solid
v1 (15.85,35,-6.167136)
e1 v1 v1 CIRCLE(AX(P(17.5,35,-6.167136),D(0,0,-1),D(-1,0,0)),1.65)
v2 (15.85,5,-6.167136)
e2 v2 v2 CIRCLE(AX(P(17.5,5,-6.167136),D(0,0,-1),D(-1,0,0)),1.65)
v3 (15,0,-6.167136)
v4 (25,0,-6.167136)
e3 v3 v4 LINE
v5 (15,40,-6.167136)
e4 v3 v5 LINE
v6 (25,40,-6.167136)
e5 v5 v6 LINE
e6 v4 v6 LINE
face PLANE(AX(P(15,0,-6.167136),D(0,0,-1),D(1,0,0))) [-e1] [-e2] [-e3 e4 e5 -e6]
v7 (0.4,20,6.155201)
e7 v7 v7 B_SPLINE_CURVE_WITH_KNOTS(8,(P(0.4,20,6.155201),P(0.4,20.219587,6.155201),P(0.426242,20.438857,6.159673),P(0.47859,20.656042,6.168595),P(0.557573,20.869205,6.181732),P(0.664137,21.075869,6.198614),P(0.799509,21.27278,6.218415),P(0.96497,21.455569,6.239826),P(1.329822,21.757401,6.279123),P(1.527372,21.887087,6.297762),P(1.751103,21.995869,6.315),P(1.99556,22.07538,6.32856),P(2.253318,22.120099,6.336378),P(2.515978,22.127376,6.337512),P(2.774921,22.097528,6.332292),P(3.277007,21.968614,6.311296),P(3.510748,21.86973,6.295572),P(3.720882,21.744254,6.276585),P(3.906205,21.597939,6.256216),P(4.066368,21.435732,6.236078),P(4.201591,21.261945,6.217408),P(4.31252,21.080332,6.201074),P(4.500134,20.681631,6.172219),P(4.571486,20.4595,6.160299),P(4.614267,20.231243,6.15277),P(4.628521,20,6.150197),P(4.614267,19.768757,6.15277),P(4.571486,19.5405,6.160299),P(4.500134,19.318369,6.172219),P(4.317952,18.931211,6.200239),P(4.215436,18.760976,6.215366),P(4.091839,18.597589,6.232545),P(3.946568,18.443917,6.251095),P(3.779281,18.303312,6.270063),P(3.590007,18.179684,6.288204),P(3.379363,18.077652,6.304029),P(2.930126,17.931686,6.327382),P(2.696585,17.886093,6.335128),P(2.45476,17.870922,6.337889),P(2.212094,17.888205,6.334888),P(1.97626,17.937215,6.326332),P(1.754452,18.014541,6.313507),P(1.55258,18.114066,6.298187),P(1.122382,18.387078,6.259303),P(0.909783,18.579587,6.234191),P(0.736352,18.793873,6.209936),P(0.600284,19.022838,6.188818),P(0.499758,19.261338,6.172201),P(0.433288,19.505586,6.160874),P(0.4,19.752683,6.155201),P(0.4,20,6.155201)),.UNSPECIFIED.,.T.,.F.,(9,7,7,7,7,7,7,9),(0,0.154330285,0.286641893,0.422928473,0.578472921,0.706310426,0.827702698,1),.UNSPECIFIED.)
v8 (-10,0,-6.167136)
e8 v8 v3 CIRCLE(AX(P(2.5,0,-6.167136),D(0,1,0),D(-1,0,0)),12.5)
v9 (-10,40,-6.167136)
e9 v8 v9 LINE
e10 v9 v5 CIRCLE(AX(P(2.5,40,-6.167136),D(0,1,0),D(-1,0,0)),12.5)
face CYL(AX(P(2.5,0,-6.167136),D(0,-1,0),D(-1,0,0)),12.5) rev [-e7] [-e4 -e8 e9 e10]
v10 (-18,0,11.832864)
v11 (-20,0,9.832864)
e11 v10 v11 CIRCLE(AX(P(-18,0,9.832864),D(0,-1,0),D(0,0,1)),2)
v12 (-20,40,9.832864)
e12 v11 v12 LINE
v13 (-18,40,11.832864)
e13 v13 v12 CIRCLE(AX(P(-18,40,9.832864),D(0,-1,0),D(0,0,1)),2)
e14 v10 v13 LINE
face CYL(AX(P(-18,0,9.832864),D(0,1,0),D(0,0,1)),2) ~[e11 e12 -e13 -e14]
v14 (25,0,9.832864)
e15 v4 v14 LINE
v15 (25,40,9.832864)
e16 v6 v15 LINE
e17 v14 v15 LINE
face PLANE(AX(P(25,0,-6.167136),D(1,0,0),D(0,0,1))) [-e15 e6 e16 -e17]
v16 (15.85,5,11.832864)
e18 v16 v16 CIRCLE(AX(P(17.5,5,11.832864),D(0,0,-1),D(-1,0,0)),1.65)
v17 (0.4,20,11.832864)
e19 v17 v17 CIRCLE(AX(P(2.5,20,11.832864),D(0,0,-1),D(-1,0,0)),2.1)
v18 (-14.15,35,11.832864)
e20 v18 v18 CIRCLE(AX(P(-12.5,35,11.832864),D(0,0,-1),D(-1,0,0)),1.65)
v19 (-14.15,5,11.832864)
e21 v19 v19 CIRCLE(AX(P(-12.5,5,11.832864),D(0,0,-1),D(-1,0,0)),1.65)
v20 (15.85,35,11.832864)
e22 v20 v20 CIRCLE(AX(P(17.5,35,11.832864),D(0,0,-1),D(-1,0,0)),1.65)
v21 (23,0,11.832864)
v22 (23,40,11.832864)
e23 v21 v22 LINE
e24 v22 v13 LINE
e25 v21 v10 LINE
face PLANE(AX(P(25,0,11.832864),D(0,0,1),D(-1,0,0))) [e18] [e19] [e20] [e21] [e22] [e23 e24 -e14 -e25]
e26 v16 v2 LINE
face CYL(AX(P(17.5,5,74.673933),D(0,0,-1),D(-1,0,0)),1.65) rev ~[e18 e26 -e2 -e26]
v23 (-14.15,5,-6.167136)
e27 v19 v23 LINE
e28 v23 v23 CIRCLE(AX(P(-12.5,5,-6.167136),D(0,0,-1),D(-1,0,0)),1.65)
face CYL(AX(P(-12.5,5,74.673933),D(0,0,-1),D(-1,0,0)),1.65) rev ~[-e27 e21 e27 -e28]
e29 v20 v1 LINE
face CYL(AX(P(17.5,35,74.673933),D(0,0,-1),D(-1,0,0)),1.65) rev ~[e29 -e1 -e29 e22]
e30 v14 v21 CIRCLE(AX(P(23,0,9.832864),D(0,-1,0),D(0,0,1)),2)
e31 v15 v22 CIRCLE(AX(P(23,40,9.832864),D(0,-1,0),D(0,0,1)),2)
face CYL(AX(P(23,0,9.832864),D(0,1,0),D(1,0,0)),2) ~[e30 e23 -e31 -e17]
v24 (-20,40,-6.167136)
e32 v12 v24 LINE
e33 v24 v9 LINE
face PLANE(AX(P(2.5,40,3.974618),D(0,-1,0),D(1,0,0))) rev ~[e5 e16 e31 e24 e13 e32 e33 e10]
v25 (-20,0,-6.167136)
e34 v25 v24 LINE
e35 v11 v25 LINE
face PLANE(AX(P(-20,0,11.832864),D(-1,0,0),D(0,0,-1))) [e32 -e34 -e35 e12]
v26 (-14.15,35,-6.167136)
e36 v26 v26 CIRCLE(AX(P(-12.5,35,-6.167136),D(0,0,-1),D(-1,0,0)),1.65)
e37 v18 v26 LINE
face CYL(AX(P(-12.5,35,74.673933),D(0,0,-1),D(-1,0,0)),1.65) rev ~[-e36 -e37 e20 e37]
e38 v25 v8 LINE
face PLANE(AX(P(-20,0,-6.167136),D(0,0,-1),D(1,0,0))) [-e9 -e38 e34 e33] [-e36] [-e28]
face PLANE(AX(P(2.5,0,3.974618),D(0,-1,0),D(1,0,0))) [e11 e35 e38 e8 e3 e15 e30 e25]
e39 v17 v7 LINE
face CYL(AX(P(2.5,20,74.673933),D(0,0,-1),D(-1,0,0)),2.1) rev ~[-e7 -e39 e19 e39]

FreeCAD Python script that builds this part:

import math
import FreeCAD as App
import Part
import Sketcher

V = App.Vector
Q = App.Units.Quantity


def edges_at(feature, points):
    """Names of the edges that pass closest to the given points."""
    edges = feature.Shape.Edges
    near = lambda p: min(range(len(edges)), key=lambda i: edges[i].distToShape(Part.Vertex(*p))[0])
    return sorted({f"Edge{near(p) + 1}" for p in points})


def add_polygon(sketch, points):
    """Adds a closed chain of lines whose ends are joined by coincident constraints."""
    first, n = sketch.GeometryCount, len(points)
    for a, b in zip(points, points[1:] + points[:1]):
        sketch.addGeometry(Part.LineSegment(App.Vector(*a, 0), App.Vector(*b, 0)), False)
    for i in range(n):
        sketch.addConstraint(Sketcher.Constraint("Coincident", first + i, 2, first + (i + 1) % n, 1))

doc = App.newDocument("Part")
body = doc.addObject("PartDesign::Body", "Body")

# Sketch on XZ plane
sketch1 = body.newObject("Sketcher::SketchObject", "Sketch")
sketch1.AttachmentSupport = (doc.getObject("XZ_Plane"), [""])
sketch1.MapMode = "FlatFace"
sketch1.addGeometry(Part.LineSegment(V(15, -6.167136, 0), V(25, -6.167136, 0)), False)
sketch1.addGeometry(Part.LineSegment(V(25, -6.167136, 0), V(25, 11.832864, 0)), False)
sketch1.addGeometry(Part.LineSegment(V(25, 11.832864, 0), V(-20, 11.832864, 0)), False)
sketch1.addGeometry(Part.LineSegment(V(-20, 11.832864, 0), V(-20, -6.167136, 0)), False)
sketch1.addGeometry(Part.LineSegment(V(-20, -6.167136, 0), V(-10, -6.167136, 0)), False)
sketch1.addGeometry(Part.ArcOfCircle(Part.Circle(V(2.5, -6.167136, 0), V(0, 0, 1), 12.5), math.radians(0), math.radians(180)), False)
sketch1.addConstraint(Sketcher.Constraint("Coincident", 0, 2, 1, 1))
sketch1.addConstraint(Sketcher.Constraint("Coincident", 1, 2, 2, 1))
sketch1.addConstraint(Sketcher.Constraint("Coincident", 2, 2, 3, 1))
sketch1.addConstraint(Sketcher.Constraint("Coincident", 3, 2, 4, 1))
sketch1.addConstraint(Sketcher.Constraint("Coincident", 4, 2, 5, 2))
sketch1.addConstraint(Sketcher.Constraint("Coincident", 5, 1, 0, 1))
sketch1.addConstraint(Sketcher.Constraint("Horizontal", 0))
sketch1.addConstraint(Sketcher.Constraint("Vertical", 1))
sketch1.addConstraint(Sketcher.Constraint("Horizontal", 2))
sketch1.addConstraint(Sketcher.Constraint("Vertical", 3))
sketch1.addConstraint(Sketcher.Constraint("Horizontal", 4))
sketch1.addConstraint(Sketcher.Constraint("Horizontal", 5, 3, 0, 2))
sketch1.addConstraint(Sketcher.Constraint("Horizontal", 0, 2, 3, 2))
sketch1.addConstraint(Sketcher.Constraint("Equal", 0, 4))
sketch1.addConstraint(Sketcher.Constraint("Radius", 5, Q("12.5 mm")))
sketch1.addConstraint(Sketcher.Constraint("DistanceX", 0, 1, 0, 2, Q("10 mm")))
sketch1.addConstraint(Sketcher.Constraint("DistanceY", 1, 1, 1, 2, Q("18 mm")))
sketch1.addConstraint(Sketcher.Constraint("DistanceX", -1, 1, 0, 2, Q("25 mm")))
sketch1.addConstraint(Sketcher.Constraint("DistanceY", 5, 3, -1, 1, Q("6.167136 mm")))
pad1 = body.newObject("PartDesign::Pad", "Pad")
pad1.Profile = sketch1
pad1.Length = 40
pad1.Reversed = True

# Sketch on XY plane
sketch2 = body.newObject("Sketcher::SketchObject", "Sketch001")
sketch2.AttachmentSupport = (doc.getObject("XY_Plane"), [""])
sketch2.MapMode = "FlatFace"
sketch2.AttachmentOffset = App.Placement(V(0, 0, 11.832864), App.Rotation())
sketch2.addGeometry(Part.Circle(V(-12.5, 5, 0), V(0, 0, 1), 1.65), False)
sketch2.addGeometry(Part.Circle(V(-12.5, 35, 0), V(0, 0, 1), 1.65), False)
sketch2.addGeometry(Part.Circle(V(17.5, 35, 0), V(0, 0, 1), 1.65), False)
sketch2.addGeometry(Part.Circle(V(17.5, 5, 0), V(0, 0, 1), 1.65), False)
sketch2.addConstraint(Sketcher.Constraint("Equal", 0, 1))
sketch2.addConstraint(Sketcher.Constraint("Equal", 1, 2))
sketch2.addConstraint(Sketcher.Constraint("Equal", 2, 3))
sketch2.addConstraint(Sketcher.Constraint("Horizontal", 1, 3, 2, 3))
sketch2.addConstraint(Sketcher.Constraint("Horizontal", 0, 3, 3, 3))
sketch2.addConstraint(Sketcher.Constraint("Vertical", 0, 3, 1, 3))
sketch2.addConstraint(Sketcher.Constraint("Vertical", 2, 3, 3, 3))
sketch2.addConstraint(Sketcher.Constraint("Diameter", 0, Q("3.3 mm")))
sketch2.addConstraint(Sketcher.Constraint("DistanceY", -1, 1, 0, 3, Q("5 mm")))
sketch2.addConstraint(Sketcher.Constraint("DistanceY", -1, 1, 1, 3, Q("35 mm")))
sketch2.addConstraint(Sketcher.Constraint("DistanceX", 1, 3, 2, 3, Q("30 mm")))
sketch2.addConstraint(Sketcher.Constraint("DistanceX", 0, 3, -1, 1, Q("12.5 mm")))
doc.recompute()
hole = body.newObject("PartDesign::Hole", "Hole")
hole.Profile = sketch2
hole.ThreadType = "None"
hole.Diameter = 3.3
hole.DepthType = "ThroughAll"

# Sketch on XY plane
sketch3 = body.newObject("Sketcher::SketchObject", "Sketch002")
sketch3.AttachmentSupport = (doc.getObject("XY_Plane"), [""])
sketch3.MapMode = "FlatFace"
sketch3.AttachmentOffset = App.Placement(V(0, 0, 11.832864), App.Rotation())
sketch3.addGeometry(Part.Circle(V(2.5, 20, 0), V(0, 0, 1), 2.1), False)
sketch3.addConstraint(Sketcher.Constraint("Diameter", 0, Q("4.2 mm")))
sketch3.addConstraint(Sketcher.Constraint("DistanceY", -1, 1, 0, 3, Q("20 mm")))
sketch3.addConstraint(Sketcher.Constraint("DistanceX", -1, 1, 0, 3, Q("2.5 mm")))
doc.recompute()
hole2 = body.newObject("PartDesign::Hole", "Hole001")
hole2.Profile = sketch3
hole2.ThreadType = "None"
hole2.Diameter = 4.2
hole2.DepthType = "ThroughAll"
doc.recompute()

fillet = body.newObject("PartDesign::Fillet", "Fillet")
fillet.Base = (hole2, edges_at(hole2, [(-20, 20, 11.833), (25, 20, 11.833)]))
fillet.Radius = 2
body2 = doc.addObject("PartDesign::Body", "Body001")

# Sketch on XY plane
sketch4 = body2.newObject("Sketcher::SketchObject", "Sketch003")
sketch4.AttachmentSupport = (doc.getObject("XY_Plane001"), [""])
sketch4.MapMode = "FlatFace"
add_polygon(sketch4, [(57.5, 170.006436), (30, 217.637833), (-30, 217.637833), (-57.5, 170.006436), (-57.5, 30.006436), (-40, -0.304453), (40, -0.304453), (57.5, 30.006436)])  # lines 0-7
sketch4.addConstraint(Sketcher.Constraint("Horizontal", 1))
sketch4.addConstraint(Sketcher.Constraint("Vertical", 3))
sketch4.addConstraint(Sketcher.Constraint("Horizontal", 5))
sketch4.addConstraint(Sketcher.Constraint("Vertical", 7))
sketch4.addConstraint(Sketcher.Constraint("Symmetric", 3, 2, 6, 2, -2))
sketch4.addConstraint(Sketcher.Constraint("Parallel", 0, 4))
sketch4.addConstraint(Sketcher.Constraint("Parallel", 2, 6))
sketch4.addConstraint(Sketcher.Constraint("Horizontal", 2, 2, 7, 2))
sketch4.addConstraint(Sketcher.Constraint("Equal", 0, 2))
sketch4.addConstraint(Sketcher.Constraint("DistanceX", 1, 2, 1, 1, Q("60 mm")))
sketch4.addConstraint(Sketcher.Constraint("DistanceX", 5, 1, 5, 2, Q("80 mm")))
sketch4.addConstraint(Sketcher.Constraint("DistanceY", 3, 2, 3, 1, Q("140 mm")))
sketch4.addConstraint(Sketcher.Constraint("Angle", 0, Q("120 deg")))
sketch4.addConstraint(Sketcher.Constraint("Distance", 0, Q("55 mm")))
sketch4.addConstraint(Sketcher.Constraint("DistanceY", -1, 1, 0, 2, Q("217.637833 mm")))
pad2 = body2.newObject("PartDesign::Pad", "Pad001")
pad2.Profile = sketch4
pad2.Length = 3
body2.Visibility = False

doc.recompute()
